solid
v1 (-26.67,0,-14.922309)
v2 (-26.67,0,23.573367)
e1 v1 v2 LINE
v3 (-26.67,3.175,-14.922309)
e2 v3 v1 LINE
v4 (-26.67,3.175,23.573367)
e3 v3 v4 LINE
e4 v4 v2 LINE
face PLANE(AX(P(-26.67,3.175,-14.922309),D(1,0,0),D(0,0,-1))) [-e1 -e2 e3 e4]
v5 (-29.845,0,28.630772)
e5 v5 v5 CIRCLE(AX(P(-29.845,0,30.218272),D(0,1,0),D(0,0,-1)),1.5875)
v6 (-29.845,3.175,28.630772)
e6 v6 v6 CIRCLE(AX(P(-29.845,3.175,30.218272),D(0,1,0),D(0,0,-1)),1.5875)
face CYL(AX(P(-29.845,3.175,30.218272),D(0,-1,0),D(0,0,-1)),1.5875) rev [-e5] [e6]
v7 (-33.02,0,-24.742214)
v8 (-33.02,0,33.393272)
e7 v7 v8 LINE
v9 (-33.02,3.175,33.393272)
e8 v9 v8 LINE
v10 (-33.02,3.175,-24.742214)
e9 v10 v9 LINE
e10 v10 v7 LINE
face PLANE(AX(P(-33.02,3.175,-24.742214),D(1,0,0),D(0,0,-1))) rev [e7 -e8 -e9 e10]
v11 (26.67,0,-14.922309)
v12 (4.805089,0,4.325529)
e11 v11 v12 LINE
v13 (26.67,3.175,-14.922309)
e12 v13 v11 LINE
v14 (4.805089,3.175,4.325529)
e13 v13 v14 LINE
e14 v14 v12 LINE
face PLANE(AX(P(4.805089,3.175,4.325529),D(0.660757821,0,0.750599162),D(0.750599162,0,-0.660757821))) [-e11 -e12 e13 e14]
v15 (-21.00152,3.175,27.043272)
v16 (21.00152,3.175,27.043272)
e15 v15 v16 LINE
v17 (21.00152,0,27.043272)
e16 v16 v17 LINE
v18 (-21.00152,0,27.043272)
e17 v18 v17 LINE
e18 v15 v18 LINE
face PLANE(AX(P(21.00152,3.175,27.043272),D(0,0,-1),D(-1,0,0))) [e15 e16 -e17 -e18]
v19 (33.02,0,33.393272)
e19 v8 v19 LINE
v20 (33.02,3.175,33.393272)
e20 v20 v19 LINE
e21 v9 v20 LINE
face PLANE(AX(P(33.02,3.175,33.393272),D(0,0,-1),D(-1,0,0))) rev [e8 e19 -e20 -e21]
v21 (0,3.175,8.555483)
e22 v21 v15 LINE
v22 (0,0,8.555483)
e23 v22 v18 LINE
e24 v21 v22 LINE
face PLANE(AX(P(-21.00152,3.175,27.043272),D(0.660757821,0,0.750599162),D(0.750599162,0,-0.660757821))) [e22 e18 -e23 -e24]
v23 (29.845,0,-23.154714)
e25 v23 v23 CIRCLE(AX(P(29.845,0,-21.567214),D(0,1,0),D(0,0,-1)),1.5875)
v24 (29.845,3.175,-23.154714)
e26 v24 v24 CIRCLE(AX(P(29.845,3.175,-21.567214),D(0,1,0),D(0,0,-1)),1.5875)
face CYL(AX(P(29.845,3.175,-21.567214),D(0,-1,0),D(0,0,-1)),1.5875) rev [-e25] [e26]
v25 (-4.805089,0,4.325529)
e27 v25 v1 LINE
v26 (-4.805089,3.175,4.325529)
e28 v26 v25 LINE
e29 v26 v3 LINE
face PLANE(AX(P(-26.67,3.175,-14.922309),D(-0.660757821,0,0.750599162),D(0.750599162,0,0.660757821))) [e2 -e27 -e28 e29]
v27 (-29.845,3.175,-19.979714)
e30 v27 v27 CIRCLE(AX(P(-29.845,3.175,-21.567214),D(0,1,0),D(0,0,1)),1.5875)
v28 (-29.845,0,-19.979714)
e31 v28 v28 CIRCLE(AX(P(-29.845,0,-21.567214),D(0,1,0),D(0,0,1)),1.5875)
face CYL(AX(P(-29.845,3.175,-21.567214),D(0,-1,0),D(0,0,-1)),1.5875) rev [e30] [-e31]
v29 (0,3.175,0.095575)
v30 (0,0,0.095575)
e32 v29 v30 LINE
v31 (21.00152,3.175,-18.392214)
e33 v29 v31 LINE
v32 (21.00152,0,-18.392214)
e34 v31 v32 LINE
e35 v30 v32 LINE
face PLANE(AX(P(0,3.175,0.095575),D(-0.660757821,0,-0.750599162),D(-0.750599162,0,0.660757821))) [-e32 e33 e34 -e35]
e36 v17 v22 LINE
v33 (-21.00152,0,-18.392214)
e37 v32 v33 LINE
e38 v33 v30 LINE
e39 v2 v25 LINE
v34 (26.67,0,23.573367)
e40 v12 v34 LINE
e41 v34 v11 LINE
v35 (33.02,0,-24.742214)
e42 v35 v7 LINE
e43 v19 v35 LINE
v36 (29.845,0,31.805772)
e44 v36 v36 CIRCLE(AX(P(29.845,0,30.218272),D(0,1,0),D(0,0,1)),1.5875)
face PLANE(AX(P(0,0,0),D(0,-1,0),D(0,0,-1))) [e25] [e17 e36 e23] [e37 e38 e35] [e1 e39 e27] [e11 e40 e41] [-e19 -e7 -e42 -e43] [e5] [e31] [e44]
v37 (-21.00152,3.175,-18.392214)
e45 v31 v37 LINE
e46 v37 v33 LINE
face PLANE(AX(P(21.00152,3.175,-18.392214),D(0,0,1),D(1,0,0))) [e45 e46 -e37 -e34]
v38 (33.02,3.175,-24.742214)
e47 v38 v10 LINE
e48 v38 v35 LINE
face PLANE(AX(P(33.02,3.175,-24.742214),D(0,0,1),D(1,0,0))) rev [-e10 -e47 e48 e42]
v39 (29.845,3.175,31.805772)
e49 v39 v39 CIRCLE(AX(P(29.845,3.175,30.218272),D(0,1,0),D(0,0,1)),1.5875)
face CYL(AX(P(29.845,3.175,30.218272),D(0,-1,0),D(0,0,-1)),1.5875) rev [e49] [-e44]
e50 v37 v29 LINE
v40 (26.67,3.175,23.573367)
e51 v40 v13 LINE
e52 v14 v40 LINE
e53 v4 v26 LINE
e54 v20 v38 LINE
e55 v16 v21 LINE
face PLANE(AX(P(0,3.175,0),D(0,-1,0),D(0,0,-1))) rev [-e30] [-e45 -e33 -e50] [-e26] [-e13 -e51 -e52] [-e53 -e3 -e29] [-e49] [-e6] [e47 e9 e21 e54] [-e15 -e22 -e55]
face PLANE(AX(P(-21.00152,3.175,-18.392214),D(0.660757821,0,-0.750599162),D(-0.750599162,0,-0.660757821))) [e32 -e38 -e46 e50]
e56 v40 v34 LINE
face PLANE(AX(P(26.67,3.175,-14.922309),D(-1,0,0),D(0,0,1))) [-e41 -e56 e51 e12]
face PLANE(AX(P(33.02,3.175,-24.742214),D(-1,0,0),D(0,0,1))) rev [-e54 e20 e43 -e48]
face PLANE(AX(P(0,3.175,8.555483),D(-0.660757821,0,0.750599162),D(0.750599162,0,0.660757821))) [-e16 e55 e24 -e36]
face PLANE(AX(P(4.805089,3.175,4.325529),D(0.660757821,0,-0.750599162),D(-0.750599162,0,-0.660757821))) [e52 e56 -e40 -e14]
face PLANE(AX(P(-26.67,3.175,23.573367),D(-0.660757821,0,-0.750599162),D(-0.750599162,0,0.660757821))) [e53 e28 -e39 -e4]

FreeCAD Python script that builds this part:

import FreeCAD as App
import Part
import Sketcher

V = App.Vector
Q = App.Units.Quantity

doc = App.newDocument("Part")
body = doc.addObject("PartDesign::Body", "Body")

# Sketch on XZ plane
sketch1 = body.newObject("Sketcher::SketchObject", "Sketch")
sketch1.AttachmentSupport = (doc.getObject("XZ_Plane"), [""])
sketch1.MapMode = "FlatFace"
sketch1.addGeometry(Part.LineSegment(V(-33, -24.7, 0), V(-33, 33.4, 0)), False)
sketch1.addGeometry(Part.LineSegment(V(-33, 33.4, 0), V(33, 33.4, 0)), False)
sketch1.addGeometry(Part.LineSegment(V(33, 33.4, 0), V(33, -24.7, 0)), False)
sketch1.addGeometry(Part.LineSegment(V(33, -24.7, 0), V(-33, -24.7, 0)), False)
sketch1.addGeometry(Part.Circle(V(-29.8, 30.2, 0), V(0, 0, 1), 1.6), False)
sketch1.addGeometry(Part.LineSegment(V(-4.8, 4.3, 0), V(-26.7, 23.6, 0)), False)
sketch1.addGeometry(Part.LineSegment(V(-26.7, 23.6, 0), V(-26.7, -14.9, 0)), False)
sketch1.addGeometry(Part.LineSegment(V(-26.7, -14.9, 0), V(-4.8, 4.3, 0)), False)
sketch1.addGeometry(Part.Circle(V(29.8, 30.2, 0), V(0, 0, 1), 1.6), False)
sketch1.addGeometry(Part.LineSegment(V(-21, 27, 0), V(0, 8.6, 0)), False)
sketch1.addGeometry(Part.LineSegment(V(0, 8.6, 0), V(21, 27, 0)), False)
sketch1.addGeometry(Part.LineSegment(V(21, 27, 0), V(-21, 27, 0)), False)
sketch1.addGeometry(Part.LineSegment(V(26.7, 23.6, 0), V(4.8, 4.3, 0)), False)
sketch1.addGeometry(Part.LineSegment(V(4.8, 4.3, 0), V(26.7, -14.9, 0)), False)
sketch1.addGeometry(Part.LineSegment(V(26.7, -14.9, 0), V(26.7, 23.6, 0)), False)
sketch1.addGeometry(Part.Circle(V(-29.8, -21.6, 0), V(0, 0, 1), 1.6), False)
sketch1.addGeometry(Part.LineSegment(V(0, 0.1, 0), V(-21, -18.4, 0)), False)
sketch1.addGeometry(Part.LineSegment(V(-21, -18.4, 0), V(21, -18.4, 0)), False)
sketch1.addGeometry(Part.LineSegment(V(21, -18.4, 0), V(0, 0.1, 0)), False)
sketch1.addGeometry(Part.Circle(V(29.8, -21.6, 0), V(0, 0, 1), 1.6), False)
sketch1.addConstraint(Sketcher.Constraint("Coincident", 0, 2, 1, 1))
sketch1.addConstraint(Sketcher.Constraint("Coincident", 1, 2, 2, 1))
sketch1.addConstraint(Sketcher.Constraint("Coincident", 2, 2, 3, 1))
sketch1.addConstraint(Sketcher.Constraint("Coincident", 3, 2, 0, 1))
sketch1.addConstraint(Sketcher.Constraint("Coincident", 5, 2, 6, 1))
sketch1.addConstraint(Sketcher.Constraint("Coincident", 6, 2, 7, 1))
sketch1.addConstraint(Sketcher.Constraint("Coincident", 7, 2, 5, 1))
sketch1.addConstraint(Sketcher.Constraint("Coincident", 9, 2, 10, 1))
sketch1.addConstraint(Sketcher.Constraint("Coincident", 10, 2, 11, 1))
sketch1.addConstraint(Sketcher.Constraint("Coincident", 11, 2, 9, 1))
sketch1.addConstraint(Sketcher.Constraint("Coincident", 12, 2, 13, 1))
sketch1.addConstraint(Sketcher.Constraint("Coincident", 13, 2, 14, 1))
sketch1.addConstraint(Sketcher.Constraint("Coincident", 14, 2, 12, 1))
sketch1.addConstraint(Sketcher.Constraint("Coincident", 16, 2, 17, 1))
sketch1.addConstraint(Sketcher.Constraint("Coincident", 17, 2, 18, 1))
sketch1.addConstraint(Sketcher.Constraint("Coincident", 18, 2, 16, 1))
sketch1.addConstraint(Sketcher.Constraint("Vertical", 0))
sketch1.addConstraint(Sketcher.Constraint("Horizontal", 1))
sketch1.addConstraint(Sketcher.Constraint("Vertical", 2))
sketch1.addConstraint(Sketcher.Constraint("Horizontal", 3))
sketch1.addConstraint(Sketcher.Constraint("Vertical", 6))
sketch1.addConstraint(Sketcher.Constraint("Horizontal", 11))
sketch1.addConstraint(Sketcher.Constraint("Vertical", 14))
sketch1.addConstraint(Sketcher.Constraint("Horizontal", 17))
sketch1.addConstraint(Sketcher.Constraint("Equal", 4, 8))
sketch1.addConstraint(Sketcher.Constraint("Equal", 8, 15))
sketch1.addConstraint(Sketcher.Constraint("Equal", 15, 19))
sketch1.addConstraint(Sketcher.Constraint("Symmetric", 4, 3, 8, 3, -2))
sketch1.addConstraint(Sketcher.Constraint("Symmetric", 15, 3, 19, 3, -2))
sketch1.addConstraint(Sketcher.Constraint("Symmetric", 7, 2, 12, 2, -2))
sketch1.addConstraint(Sketcher.Constraint("Symmetric", 6, 2, 13, 2, -2))
sketch1.addConstraint(Sketcher.Constraint("PointOnObject", 9, 2, -2))
sketch1.addConstraint(Sketcher.Constraint("PointOnObject", 18, 2, -2))
sketch1.addConstraint(Sketcher.Constraint("Parallel", 5, 9))
sketch1.addConstraint(Sketcher.Constraint("Parallel", 7, 10))
sketch1.addConstraint(Sketcher.Constraint("Parallel", 10, 12))
sketch1.addConstraint(Sketcher.Constraint("Parallel", 9, 13))
sketch1.addConstraint(Sketcher.Constraint("Parallel", 12, 16))
sketch1.addConstraint(Sketcher.Constraint("Parallel", 13, 18))
sketch1.addConstraint(Sketcher.Constraint("Vertical", 4, 3, 15, 3))
sketch1.addConstraint(Sketcher.Constraint("Vertical", 11, 2, 16, 2))
sketch1.addConstraint(Sketcher.Constraint("Diameter", 4, Q("0.125 in")))
sketch1.addConstraint(Sketcher.Constraint("DistanceX", 1, 1, 1, 2, Q("2.6 in")))
sketch1.addConstraint(Sketcher.Constraint("DistanceX", 0, 2, -1, 1, Q("1.3 in")))
sketch1.addConstraint(Sketcher.Constraint("DistanceX", 5, 2, -1, 1, Q("1.05 in")))
sketch1.addConstraint(Sketcher.Constraint("DistanceX", 4, 3, 8, 3, Q("2.35 in")))
sketch1.addConstraint(Sketcher.Constraint("DistanceY", 10, 2, 1, 2, Q("0.25 in")))
sketch1.addConstraint(Sketcher.Constraint("DistanceY", 3, 2, 16, 2, Q("0.25 in")))
sketch1.addConstraint(Sketcher.Constraint("DistanceY", 4, 3, 0, 2, Q("0.125 in")))
sketch1.addConstraint(Sketcher.Constraint("DistanceY", 2, 2, 19, 3, Q("0.125 in")))
sketch1.addConstraint(Sketcher.Constraint("DistanceX", 11, 2, 11, 1, Q("42.00304 mm")))
sketch1.addConstraint(Sketcher.Constraint("DistanceY", 0, 1, 0, 2, Q("58.135485 mm")))
sketch1.addConstraint(Sketcher.Constraint("DistanceY", 6, 2, 6, 1, Q("38.495676 mm")))
sketch1.addConstraint(Sketcher.Constraint("DistanceY", -1, 1, 4, 3, Q("30.218272 mm")))
sketch1.addConstraint(Sketcher.Constraint("DistanceY", 6, 2, -1, 1, Q("14.922309 mm")))
sketch1.addConstraint(Sketcher.Constraint("DistanceX", 7, 2, -1, 1, Q("4.805089 mm")))
pad1 = body.newObject("PartDesign::Pad", "Pad")
pad1.Profile = sketch1
pad1.Length = Q("0.125 in")
pad1.Reversed = True

doc.recompute()
